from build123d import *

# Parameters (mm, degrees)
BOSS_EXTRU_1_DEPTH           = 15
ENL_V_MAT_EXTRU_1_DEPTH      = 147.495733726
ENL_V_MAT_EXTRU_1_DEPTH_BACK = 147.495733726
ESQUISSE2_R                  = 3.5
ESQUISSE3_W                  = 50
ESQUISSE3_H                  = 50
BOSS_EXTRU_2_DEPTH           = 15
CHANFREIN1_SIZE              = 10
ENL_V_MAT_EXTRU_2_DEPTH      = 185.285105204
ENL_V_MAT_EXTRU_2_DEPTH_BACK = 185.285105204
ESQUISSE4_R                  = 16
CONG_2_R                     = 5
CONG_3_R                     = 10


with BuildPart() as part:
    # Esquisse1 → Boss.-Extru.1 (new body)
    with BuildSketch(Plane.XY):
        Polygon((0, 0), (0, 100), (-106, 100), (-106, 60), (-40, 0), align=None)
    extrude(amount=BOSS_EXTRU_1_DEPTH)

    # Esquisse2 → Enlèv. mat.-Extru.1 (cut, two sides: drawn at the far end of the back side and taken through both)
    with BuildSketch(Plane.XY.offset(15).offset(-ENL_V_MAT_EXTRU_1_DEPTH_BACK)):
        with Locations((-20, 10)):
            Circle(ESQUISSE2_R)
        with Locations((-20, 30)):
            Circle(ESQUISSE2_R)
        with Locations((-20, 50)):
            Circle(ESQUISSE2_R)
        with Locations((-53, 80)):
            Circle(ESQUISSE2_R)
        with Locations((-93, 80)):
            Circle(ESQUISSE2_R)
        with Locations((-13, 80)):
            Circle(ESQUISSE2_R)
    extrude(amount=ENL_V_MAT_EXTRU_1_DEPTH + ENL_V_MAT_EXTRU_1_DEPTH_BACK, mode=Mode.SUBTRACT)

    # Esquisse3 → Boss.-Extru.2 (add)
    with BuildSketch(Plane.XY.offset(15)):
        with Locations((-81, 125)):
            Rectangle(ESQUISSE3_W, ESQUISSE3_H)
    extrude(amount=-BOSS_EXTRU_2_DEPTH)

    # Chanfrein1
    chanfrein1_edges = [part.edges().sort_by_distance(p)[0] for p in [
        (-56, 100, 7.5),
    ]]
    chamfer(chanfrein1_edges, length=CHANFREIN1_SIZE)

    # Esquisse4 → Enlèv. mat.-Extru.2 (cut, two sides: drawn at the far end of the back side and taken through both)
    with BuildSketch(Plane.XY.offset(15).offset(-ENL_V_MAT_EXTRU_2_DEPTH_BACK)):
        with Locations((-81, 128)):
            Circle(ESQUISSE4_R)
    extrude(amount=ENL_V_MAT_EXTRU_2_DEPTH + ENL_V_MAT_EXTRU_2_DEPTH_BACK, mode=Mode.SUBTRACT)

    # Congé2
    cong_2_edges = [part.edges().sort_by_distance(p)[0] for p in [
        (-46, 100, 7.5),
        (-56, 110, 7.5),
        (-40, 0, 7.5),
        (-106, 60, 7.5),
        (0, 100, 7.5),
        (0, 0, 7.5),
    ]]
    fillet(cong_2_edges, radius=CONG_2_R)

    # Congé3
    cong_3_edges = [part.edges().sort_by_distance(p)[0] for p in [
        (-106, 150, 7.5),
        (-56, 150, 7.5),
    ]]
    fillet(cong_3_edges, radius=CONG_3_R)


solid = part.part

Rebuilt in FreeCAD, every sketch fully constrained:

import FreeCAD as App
import Part
import Sketcher

V = App.Vector


def edges_at(feature, points):
    """Names of the edges that pass closest to the given points."""
    edges = feature.Shape.Edges
    near = lambda p: min(range(len(edges)), key=lambda i: edges[i].distToShape(Part.Vertex(*p))[0])
    return sorted({f"Edge{near(p) + 1}" for p in points})

doc = App.newDocument("Part")
body = doc.addObject("PartDesign::Body", "Body")

# Sketch on XY plane
sketch1 = doc.addObject("Sketcher::SketchObject", "Sketch")
body.addObject(sketch1)
sketch1.AttachmentSupport = (doc.XY_Plane, [""])
sketch1.MapMode = "FlatFace"
sketch1.addGeometry(Part.LineSegment(V(0, 0, 0), V(0, 100, 0)), False)
sketch1.addGeometry(Part.LineSegment(V(0, 100, 0), V(-106, 100, 0)), False)
sketch1.addGeometry(Part.LineSegment(V(-106, 100, 0), V(-106, 60, 0)), False)
sketch1.addGeometry(Part.LineSegment(V(-106, 60, 0), V(-40, 0, 0)), False)
sketch1.addGeometry(Part.LineSegment(V(-40, 0, 0), V(0, 0, 0)), False)
sketch1.addConstraint(Sketcher.Constraint("Coincident", 0, 2, 1, 1))
sketch1.addConstraint(Sketcher.Constraint("Coincident", 1, 2, 2, 1))
sketch1.addConstraint(Sketcher.Constraint("Coincident", 2, 2, 3, 1))
sketch1.addConstraint(Sketcher.Constraint("Coincident", 3, 2, 4, 1))
sketch1.addConstraint(Sketcher.Constraint("Coincident", 4, 2, 0, 1))
sketch1.addConstraint(Sketcher.Constraint("Vertical", 0))
sketch1.addConstraint(Sketcher.Constraint("Horizontal", 1))
sketch1.addConstraint(Sketcher.Constraint("Vertical", 2))
sketch1.addConstraint(Sketcher.Constraint("Horizontal", 4))
sketch1.addConstraint(Sketcher.Constraint("Coincident", 4, 2, -1, 1))
sketch1.addConstraint(Sketcher.Constraint("Equal", 4, 2))
sketch1.addConstraint(Sketcher.Constraint("DistanceX", 1, 2, 1, 1, 106.0))
sketch1.addConstraint(Sketcher.Constraint("DistanceX", 4, 1, 4, 2, 40.0))
sketch1.addConstraint(Sketcher.Constraint("DistanceY", 0, 1, 0, 2, 100.0))
pad1 = doc.addObject("PartDesign::Pad", "Pad")
body.addObject(pad1)
pad1.Profile = sketch1
pad1.Length = 15

# Sketch on XY plane
sketch2 = doc.addObject("Sketcher::SketchObject", "Sketch001")
body.addObject(sketch2)
sketch2.AttachmentSupport = (doc.XY_Plane, [""])
sketch2.MapMode = "FlatFace"
sketch2.AttachmentOffset = App.Placement(V(0, 0, 15), App.Rotation())
sketch2.addGeometry(Part.Circle(V(-20, 10, 0), V(0, 0, 1), 3.5), False)
sketch2.addGeometry(Part.Circle(V(-20, 30, 0), V(0, 0, 1), 3.5), False)
sketch2.addGeometry(Part.Circle(V(-20, 50, 0), V(0, 0, 1), 3.5), False)
sketch2.addGeometry(Part.Circle(V(-53, 80, 0), V(0, 0, 1), 3.5), False)
sketch2.addGeometry(Part.Circle(V(-93, 80, 0), V(0, 0, 1), 3.5), False)
sketch2.addGeometry(Part.Circle(V(-13, 80, 0), V(0, 0, 1), 3.5), False)
sketch2.addConstraint(Sketcher.Constraint("Equal", 0, 1))
sketch2.addConstraint(Sketcher.Constraint("Equal", 1, 2))
sketch2.addConstraint(Sketcher.Constraint("Equal", 2, 3))
sketch2.addConstraint(Sketcher.Constraint("Equal", 3, 4))
sketch2.addConstraint(Sketcher.Constraint("Equal", 4, 5))
sketch2.addConstraint(Sketcher.Constraint("Horizontal", 3, 3, 4, 3))
sketch2.addConstraint(Sketcher.Constraint("Horizontal", 4, 3, 5, 3))
sketch2.addConstraint(Sketcher.Constraint("Vertical", 0, 3, 1, 3))
sketch2.addConstraint(Sketcher.Constraint("Vertical", 1, 3, 2, 3))
sketch2.addConstraint(Sketcher.Constraint("Diameter", 0, 7.0))
sketch2.addConstraint(Sketcher.Constraint("DistanceX", 0, 3, -1, 1, 20.0))
sketch2.addConstraint(Sketcher.Constraint("DistanceY", -1, 1, 0, 3, 10.0))
sketch2.addConstraint(Sketcher.Constraint("DistanceY", -1, 1, 1, 3, 30.0))
sketch2.addConstraint(Sketcher.Constraint("DistanceY", -1, 1, 2, 3, 50.0))
sketch2.addConstraint(Sketcher.Constraint("DistanceX", 3, 3, -1, 1, 53.0))
sketch2.addConstraint(Sketcher.Constraint("DistanceY", -1, 1, 3, 3, 80.0))
sketch2.addConstraint(Sketcher.Constraint("DistanceX", 4, 3, -1, 1, 93.0))
sketch2.addConstraint(Sketcher.Constraint("DistanceX", 5, 3, -1, 1, 13.0))
pocket1 = doc.addObject("PartDesign::Pocket", "Pocket")
body.addObject(pocket1)
pocket1.Profile = sketch2
pocket1.Type = "ThroughAll"
pocket1.Midplane = True

# Sketch on XY plane
sketch3 = doc.addObject("Sketcher::SketchObject", "Sketch002")
body.addObject(sketch3)
sketch3.AttachmentSupport = (doc.XY_Plane, [""])
sketch3.MapMode = "FlatFace"
sketch3.AttachmentOffset = App.Placement(V(0, 0, 15), App.Rotation())
sketch3.addGeometry(Part.LineSegment(V(-106, 150, 0), V(-106, 100, 0)), False)
sketch3.addGeometry(Part.LineSegment(V(-106, 100, 0), V(-56, 100, 0)), False)
sketch3.addGeometry(Part.LineSegment(V(-56, 100, 0), V(-56, 150, 0)), False)
sketch3.addGeometry(Part.LineSegment(V(-56, 150, 0), V(-106, 150, 0)), False)
sketch3.addConstraint(Sketcher.Constraint("Coincident", 0, 2, 1, 1))
sketch3.addConstraint(Sketcher.Constraint("Coincident", 1, 2, 2, 1))
sketch3.addConstraint(Sketcher.Constraint("Coincident", 2, 2, 3, 1))
sketch3.addConstraint(Sketcher.Constraint("Coincident", 3, 2, 0, 1))
sketch3.addConstraint(Sketcher.Constraint("Vertical", 0))
sketch3.addConstraint(Sketcher.Constraint("Horizontal", 1))
sketch3.addConstraint(Sketcher.Constraint("Vertical", 2))
sketch3.addConstraint(Sketcher.Constraint("Horizontal", 3))
sketch3.addConstraint(Sketcher.Constraint("Equal", 3, 0))
sketch3.addConstraint(Sketcher.Constraint("DistanceX", 1, 1, 1, 2, 50.0))
sketch3.addConstraint(Sketcher.Constraint("DistanceX", 0, 2, -1, 1, 106.0))
sketch3.addConstraint(Sketcher.Constraint("DistanceY", -1, 1, 0, 2, 100.0))
pad2 = doc.addObject("PartDesign::Pad", "Pad001")
body.addObject(pad2)
pad2.Profile = sketch3
pad2.Length = 15
pad2.Reversed = True
doc.recompute()

chamfer = doc.addObject("PartDesign::Chamfer", "Chamfer")
body.addObject(chamfer)
chamfer.Base = (pad2, edges_at(pad2, [(-56, 100, 7.5)]))
chamfer.Size = 10

# Sketch on XY plane
sketch4 = doc.addObject("Sketcher::SketchObject", "Sketch003")
body.addObject(sketch4)
sketch4.AttachmentSupport = (doc.XY_Plane, [""])
sketch4.MapMode = "FlatFace"
sketch4.AttachmentOffset = App.Placement(V(0, 0, 15), App.Rotation())
sketch4.addGeometry(Part.Circle(V(-81, 128, 0), V(0, 0, 1), 16), False)
sketch4.addConstraint(Sketcher.Constraint("Diameter", 0, 32.0))
sketch4.addConstraint(Sketcher.Constraint("DistanceX", 0, 3, -1, 1, 81.0))
sketch4.addConstraint(Sketcher.Constraint("DistanceY", -1, 1, 0, 3, 128.0))
pocket2 = doc.addObject("PartDesign::Pocket", "Pocket001")
body.addObject(pocket2)
pocket2.Profile = sketch4
pocket2.Type = "ThroughAll"
pocket2.Midplane = True
doc.recompute()

fillet = doc.addObject("PartDesign::Fillet", "Fillet")
body.addObject(fillet)
fillet.Base = (pocket2, edges_at(pocket2, [
    (-46, 100, 7.5),
    (-56, 110, 7.5),
    (-40, 0, 7.5),
    (-106, 60, 7.5),
    (0, 100, 7.5),
    (0, 0, 7.5),
]))
fillet.Radius = 5
doc.recompute()

fillet2 = doc.addObject("PartDesign::Fillet", "Fillet001")
body.addObject(fillet2)
fillet2.Base = (fillet, edges_at(fillet, [(-106, 150, 7.5), (-56, 150, 7.5)]))
fillet2.Radius = 10

doc.recompute()
